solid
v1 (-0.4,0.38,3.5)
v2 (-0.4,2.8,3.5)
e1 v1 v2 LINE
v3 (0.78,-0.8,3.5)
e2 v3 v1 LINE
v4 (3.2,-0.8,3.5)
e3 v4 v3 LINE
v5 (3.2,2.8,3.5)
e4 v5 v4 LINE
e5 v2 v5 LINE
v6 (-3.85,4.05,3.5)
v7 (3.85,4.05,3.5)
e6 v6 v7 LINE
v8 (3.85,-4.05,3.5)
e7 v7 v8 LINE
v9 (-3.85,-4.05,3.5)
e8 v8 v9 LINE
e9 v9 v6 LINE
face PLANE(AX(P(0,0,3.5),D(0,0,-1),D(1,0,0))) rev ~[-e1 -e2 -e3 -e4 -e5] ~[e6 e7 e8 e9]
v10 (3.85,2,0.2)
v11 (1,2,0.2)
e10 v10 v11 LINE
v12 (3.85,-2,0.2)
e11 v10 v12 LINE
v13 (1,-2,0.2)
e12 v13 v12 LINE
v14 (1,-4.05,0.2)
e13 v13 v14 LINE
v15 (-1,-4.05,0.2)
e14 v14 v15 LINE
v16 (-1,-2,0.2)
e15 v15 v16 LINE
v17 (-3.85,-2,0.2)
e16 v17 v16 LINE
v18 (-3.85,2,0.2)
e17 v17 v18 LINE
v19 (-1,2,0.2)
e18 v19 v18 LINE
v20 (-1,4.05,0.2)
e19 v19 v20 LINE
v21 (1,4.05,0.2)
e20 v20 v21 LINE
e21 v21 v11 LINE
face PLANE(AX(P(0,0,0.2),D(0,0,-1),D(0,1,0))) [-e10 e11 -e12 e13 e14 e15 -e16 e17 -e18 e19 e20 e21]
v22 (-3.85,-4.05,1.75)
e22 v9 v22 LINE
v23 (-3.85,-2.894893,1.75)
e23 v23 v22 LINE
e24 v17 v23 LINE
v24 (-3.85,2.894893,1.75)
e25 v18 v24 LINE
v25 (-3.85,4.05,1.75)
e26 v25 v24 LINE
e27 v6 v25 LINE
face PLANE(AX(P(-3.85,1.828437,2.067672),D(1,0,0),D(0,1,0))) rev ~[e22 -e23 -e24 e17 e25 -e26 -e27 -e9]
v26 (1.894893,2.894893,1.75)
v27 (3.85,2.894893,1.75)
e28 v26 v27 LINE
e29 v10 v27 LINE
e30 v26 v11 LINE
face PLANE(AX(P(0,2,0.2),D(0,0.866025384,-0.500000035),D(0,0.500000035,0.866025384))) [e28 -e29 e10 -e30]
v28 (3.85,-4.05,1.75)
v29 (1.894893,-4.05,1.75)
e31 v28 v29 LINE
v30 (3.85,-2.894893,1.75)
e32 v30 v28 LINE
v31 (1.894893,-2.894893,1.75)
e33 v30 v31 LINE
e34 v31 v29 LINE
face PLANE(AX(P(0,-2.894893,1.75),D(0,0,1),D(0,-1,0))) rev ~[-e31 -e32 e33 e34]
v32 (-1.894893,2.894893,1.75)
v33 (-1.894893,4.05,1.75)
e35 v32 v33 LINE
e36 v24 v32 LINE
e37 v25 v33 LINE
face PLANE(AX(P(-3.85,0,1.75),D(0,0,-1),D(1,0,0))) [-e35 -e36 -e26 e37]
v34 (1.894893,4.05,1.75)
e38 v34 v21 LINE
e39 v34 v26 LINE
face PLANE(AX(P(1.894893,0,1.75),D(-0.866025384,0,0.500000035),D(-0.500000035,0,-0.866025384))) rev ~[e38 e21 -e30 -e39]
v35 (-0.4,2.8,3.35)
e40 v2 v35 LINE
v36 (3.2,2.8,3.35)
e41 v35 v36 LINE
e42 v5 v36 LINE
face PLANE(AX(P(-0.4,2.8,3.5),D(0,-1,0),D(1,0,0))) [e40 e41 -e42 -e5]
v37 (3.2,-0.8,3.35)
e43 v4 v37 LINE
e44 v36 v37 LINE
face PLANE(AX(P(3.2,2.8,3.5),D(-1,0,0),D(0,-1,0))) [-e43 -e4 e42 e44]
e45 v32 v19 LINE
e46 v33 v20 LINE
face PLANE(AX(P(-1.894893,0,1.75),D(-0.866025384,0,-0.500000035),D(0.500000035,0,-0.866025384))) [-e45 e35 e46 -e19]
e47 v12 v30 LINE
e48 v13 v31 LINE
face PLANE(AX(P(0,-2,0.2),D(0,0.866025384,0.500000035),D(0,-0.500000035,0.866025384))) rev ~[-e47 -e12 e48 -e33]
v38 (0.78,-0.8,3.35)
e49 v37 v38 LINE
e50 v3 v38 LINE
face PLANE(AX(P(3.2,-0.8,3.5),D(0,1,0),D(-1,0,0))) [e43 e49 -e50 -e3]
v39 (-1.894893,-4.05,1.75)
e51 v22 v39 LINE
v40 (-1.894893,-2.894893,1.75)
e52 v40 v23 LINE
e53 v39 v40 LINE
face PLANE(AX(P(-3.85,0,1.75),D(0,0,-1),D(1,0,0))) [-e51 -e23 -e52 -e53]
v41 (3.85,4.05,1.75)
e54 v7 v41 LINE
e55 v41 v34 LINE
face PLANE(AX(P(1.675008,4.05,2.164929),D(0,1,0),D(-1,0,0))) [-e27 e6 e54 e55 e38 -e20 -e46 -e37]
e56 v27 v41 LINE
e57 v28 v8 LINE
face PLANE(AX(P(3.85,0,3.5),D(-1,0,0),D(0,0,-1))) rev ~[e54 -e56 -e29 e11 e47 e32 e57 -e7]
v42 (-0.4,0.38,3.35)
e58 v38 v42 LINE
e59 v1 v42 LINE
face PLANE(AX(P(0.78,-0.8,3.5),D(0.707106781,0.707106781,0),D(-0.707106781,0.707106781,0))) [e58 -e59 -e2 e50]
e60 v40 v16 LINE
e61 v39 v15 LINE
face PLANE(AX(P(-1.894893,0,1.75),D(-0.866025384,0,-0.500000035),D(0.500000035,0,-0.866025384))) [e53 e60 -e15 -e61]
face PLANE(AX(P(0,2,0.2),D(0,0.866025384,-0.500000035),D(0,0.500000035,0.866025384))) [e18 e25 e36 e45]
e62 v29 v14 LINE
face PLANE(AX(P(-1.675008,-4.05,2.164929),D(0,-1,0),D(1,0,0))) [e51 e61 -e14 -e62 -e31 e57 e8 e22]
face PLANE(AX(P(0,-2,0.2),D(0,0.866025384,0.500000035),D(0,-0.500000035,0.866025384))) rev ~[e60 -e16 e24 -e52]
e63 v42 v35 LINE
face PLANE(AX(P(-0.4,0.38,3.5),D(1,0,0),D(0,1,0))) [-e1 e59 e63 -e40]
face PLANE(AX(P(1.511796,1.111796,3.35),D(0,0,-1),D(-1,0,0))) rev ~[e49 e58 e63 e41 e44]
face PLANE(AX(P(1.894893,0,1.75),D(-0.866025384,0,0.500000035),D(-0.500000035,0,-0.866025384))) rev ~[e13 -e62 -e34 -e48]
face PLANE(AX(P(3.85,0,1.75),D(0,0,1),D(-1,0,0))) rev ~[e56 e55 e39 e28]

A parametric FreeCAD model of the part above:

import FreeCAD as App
import Part
import Sketcher
from FreeCAD import Vector
Q = App.Units.Quantity

doc = App.newDocument("Part")
body = doc.addObject("PartDesign::Body", "Body")

sketch1 = body.newObject("Sketcher::SketchObject", "Sketch")
sketch1.AttachmentSupport = (doc.getObject("XZ_Plane"), [""])
sketch1.MapMode = "FlatFace"
sketch1.addGeometry([
    Part.LineSegment(Vector(0, 0.2, 0), Vector(0, 3.5, 0)),
    Part.LineSegment(Vector(0, 3.5, 0), Vector(-3.9, 3.5, 0)),
    Part.LineSegment(Vector(-3.9, 3.5, 0), Vector(-3.9, 1.8, 0)),
    Part.LineSegment(Vector(-3.9, 1.8, 0), Vector(-1.9, 1.8, 0)),
    Part.LineSegment(Vector(-1.9, 1.8, 0), Vector(-1, 0.2, 0)),
    Part.LineSegment(Vector(-1, 0.2, 0), Vector(0, 0.2, 0)),
], False)
sketch1.addConstraint([
    Sketcher.Constraint("Coincident", 0, 2, 1, 1),
    Sketcher.Constraint("Coincident", 1, 2, 2, 1),
    Sketcher.Constraint("Coincident", 2, 2, 3, 1),
    Sketcher.Constraint("Coincident", 3, 2, 4, 1),
    Sketcher.Constraint("Coincident", 4, 2, 5, 1),
    Sketcher.Constraint("Coincident", 5, 2, 0, 1),
    Sketcher.Constraint("Vertical", 0),
    Sketcher.Constraint("Horizontal", 1),
    Sketcher.Constraint("Vertical", 2),
    Sketcher.Constraint("Horizontal", 3),
    Sketcher.Constraint("Horizontal", 5),
    Sketcher.Constraint("PointOnObject", 0, 2, -2),
    Sketcher.Constraint("DistanceX", 5, 1, 5, 2, 1.0),
    Sketcher.Constraint("Angle", 4, Q("-59.999998 deg")),
    Sketcher.Constraint("DistanceY", 0, 1, 0, 2, 3.3),
    Sketcher.Constraint("DistanceX", 1, 2, 1, 1, 3.85),
    Sketcher.Constraint("DistanceY", 2, 2, 2, 1, 1.75),
    Sketcher.Constraint("DistanceY", -1, 1, 0, 2, 3.5),
])
pad1 = body.newObject("PartDesign::Pad", "Pad")
pad1.Profile = sketch1
pad1.Length = 8.1
pad1.Midplane = True

sketch2 = body.newObject("Sketcher::SketchObject", "Sketch001")
sketch2.AttachmentSupport = (doc.getObject("YZ_Plane"), [""])
sketch2.MapMode = "FlatFace"
sketch2.addGeometry([
    Part.LineSegment(Vector(-2.9, 1.8, 0), Vector(-2, 0.2, 0)),
    Part.LineSegment(Vector(-2, 0.2, 0), Vector(0, 0.2, 0)),
    Part.LineSegment(Vector(0, 0.2, 0), Vector(0, 3.5, 0)),
    Part.LineSegment(Vector(0, 3.5, 0), Vector(-4, 3.5, 0)),
    Part.LineSegment(Vector(-4, 3.5, 0), Vector(-4, 1.8, 0)),
    Part.LineSegment(Vector(-4, 1.8, 0), Vector(-2.9, 1.8, 0)),
], False)
sketch2.addConstraint([
    Sketcher.Constraint("Coincident", 0, 2, 1, 1),
    Sketcher.Constraint("Coincident", 1, 2, 2, 1),
    Sketcher.Constraint("Coincident", 2, 2, 3, 1),
    Sketcher.Constraint("Coincident", 3, 2, 4, 1),
    Sketcher.Constraint("Coincident", 4, 2, 5, 1),
    Sketcher.Constraint("Coincident", 5, 2, 0, 1),
    Sketcher.Constraint("Horizontal", 1),
    Sketcher.Constraint("Vertical", 2),
    Sketcher.Constraint("Horizontal", 3),
    Sketcher.Constraint("Vertical", 4),
    Sketcher.Constraint("Horizontal", 5),
    Sketcher.Constraint("PointOnObject", 1, 2, -2),
    Sketcher.Constraint("DistanceX", 1, 1, 1, 2, 2.0),
    Sketcher.Constraint("Angle", 0, Q("-59.999998 deg")),
    Sketcher.Constraint("DistanceY", 2, 1, 2, 2, 3.3),
    Sketcher.Constraint("DistanceX", 3, 2, 3, 1, 4.05),
    Sketcher.Constraint("DistanceY", 4, 2, 4, 1, 1.75),
    Sketcher.Constraint("DistanceY", -1, 1, 0, 2, 0.2),
])
pad2 = body.newObject("PartDesign::Pad", "Pad001")
pad2.Profile = sketch2
pad2.Length = 7.7
pad2.Midplane = True

sketch3 = body.newObject("Sketcher::SketchObject", "Sketch002")
sketch3.AttachmentSupport = (doc.getObject("XZ_Plane"), [""])
sketch3.MapMode = "FlatFace"
sketch3.addGeometry([
    Part.LineSegment(Vector(0, 3.5, 0), Vector(0, 0.2, 0)),
    Part.LineSegment(Vector(0, 0.2, 0), Vector(1, 0.2, 0)),
    Part.LineSegment(Vector(1, 0.2, 0), Vector(1.9, 1.8, 0)),
    Part.LineSegment(Vector(1.9, 1.8, 0), Vector(3.9, 1.8, 0)),
    Part.LineSegment(Vector(3.9, 1.8, 0), Vector(3.9, 3.5, 0)),
    Part.LineSegment(Vector(3.9, 3.5, 0), Vector(0, 3.5, 0)),
], False)
sketch3.addConstraint([
    Sketcher.Constraint("Coincident", 0, 2, 1, 1),
    Sketcher.Constraint("Coincident", 1, 2, 2, 1),
    Sketcher.Constraint("Coincident", 2, 2, 3, 1),
    Sketcher.Constraint("Coincident", 3, 2, 4, 1),
    Sketcher.Constraint("Coincident", 4, 2, 5, 1),
    Sketcher.Constraint("Coincident", 5, 2, 0, 1),
    Sketcher.Constraint("Vertical", 0),
    Sketcher.Constraint("Horizontal", 1),
    Sketcher.Constraint("Horizontal", 3),
    Sketcher.Constraint("Vertical", 4),
    Sketcher.Constraint("Horizontal", 5),
    Sketcher.Constraint("PointOnObject", 0, 2, -2),
    Sketcher.Constraint("DistanceX", 1, 1, 1, 2, 1.0),
    Sketcher.Constraint("Angle", 2, Q("59.999998 deg")),
    Sketcher.Constraint("DistanceY", 0, 2, 0, 1, 3.3),
    Sketcher.Constraint("DistanceX", 5, 2, 5, 1, 3.85),
    Sketcher.Constraint("DistanceY", 4, 1, 4, 2, 1.75),
    Sketcher.Constraint("DistanceY", -1, 1, 0, 2, 0.2),
])
pad3 = body.newObject("PartDesign::Pad", "Pad002")
pad3.Profile = sketch3
pad3.Length = 8.1
pad3.Midplane = True

sketch4 = body.newObject("Sketcher::SketchObject", "Sketch003")
sketch4.AttachmentSupport = (doc.getObject("YZ_Plane"), [""])
sketch4.MapMode = "FlatFace"
sketch4.addGeometry([
    Part.LineSegment(Vector(2, 0.2, 0), Vector(2.9, 1.8, 0)),
    Part.LineSegment(Vector(2.9, 1.8, 0), Vector(4, 1.8, 0)),
    Part.LineSegment(Vector(4, 1.8, 0), Vector(4, 3.5, 0)),
    Part.LineSegment(Vector(4, 3.5, 0), Vector(0, 3.5, 0)),
    Part.LineSegment(Vector(0, 3.5, 0), Vector(0, 0.2, 0)),
    Part.LineSegment(Vector(0, 0.2, 0), Vector(2, 0.2, 0)),
], False)
sketch4.addConstraint([
    Sketcher.Constraint("Coincident", 0, 2, 1, 1),
    Sketcher.Constraint("Coincident", 1, 2, 2, 1),
    Sketcher.Constraint("Coincident", 2, 2, 3, 1),
    Sketcher.Constraint("Coincident", 3, 2, 4, 1),
    Sketcher.Constraint("Coincident", 4, 2, 5, 1),
    Sketcher.Constraint("Coincident", 5, 2, 0, 1),
    Sketcher.Constraint("Horizontal", 1),
    Sketcher.Constraint("Vertical", 2),
    Sketcher.Constraint("Horizontal", 3),
    Sketcher.Constraint("Vertical", 4),
    Sketcher.Constraint("Horizontal", 5),
    Sketcher.Constraint("PointOnObject", 3, 2, -2),
    Sketcher.Constraint("DistanceX", 5, 1, 5, 2, 2.0),
    Sketcher.Constraint("Angle", 0, Q("59.999998 deg")),
    Sketcher.Constraint("DistanceY", 4, 2, 4, 1, 3.3),
    Sketcher.Constraint("DistanceX", 3, 2, 3, 1, 4.05),
    Sketcher.Constraint("DistanceY", 2, 1, 2, 2, 1.75),
    Sketcher.Constraint("DistanceY", -1, 1, 2, 2, 3.5),
])
pad4 = body.newObject("PartDesign::Pad", "Pad003")
pad4.Profile = sketch4
pad4.Length = 7.7
pad4.Midplane = True

sketch5 = body.newObject("Sketcher::SketchObject", "Sketch004")
sketch5.AttachmentSupport = (doc.getObject("XY_Plane"), [""])
sketch5.MapMode = "FlatFace"
sketch5.AttachmentOffset = App.Placement(Vector(0, 0, 3.5), App.Rotation())
sketch5.addGeometry([
    Part.LineSegment(Vector(3.2, 2.8, 0), Vector(-0.4, 2.8, 0)),
    Part.LineSegment(Vector(-0.4, 2.8, 0), Vector(-0.4, 0.4, 0)),
    Part.LineSegment(Vector(-0.4, 0.4, 0), Vector(0.8, -0.8, 0)),
    Part.LineSegment(Vector(0.8, -0.8, 0), Vector(3.2, -0.8, 0)),
    Part.LineSegment(Vector(3.2, -0.8, 0), Vector(3.2, 2.8, 0)),
], False)
sketch5.addConstraint([
    Sketcher.Constraint("Coincident", 0, 2, 1, 1),
    Sketcher.Constraint("Coincident", 1, 2, 2, 1),
    Sketcher.Constraint("Coincident", 2, 2, 3, 1),
    Sketcher.Constraint("Coincident", 3, 2, 4, 1),
    Sketcher.Constraint("Coincident", 4, 2, 0, 1),
    Sketcher.Constraint("Horizontal", 0),
    Sketcher.Constraint("Vertical", 1),
    Sketcher.Constraint("Horizontal", 3),
    Sketcher.Constraint("Vertical", 4),
    Sketcher.Constraint("Equal", 3, 1),
    Sketcher.Constraint("Equal", 0, 4),
    Sketcher.Constraint("DistanceX", 0, 2, 0, 1, 3.6),
    Sketcher.Constraint("DistanceX", 3, 1, 3, 2, 2.42),
    Sketcher.Constraint("DistanceX", 0, 2, -1, 1, 0.4),
    Sketcher.Constraint("DistanceY", -1, 1, 0, 2, 2.8),
])
pocket1 = body.newObject("PartDesign::Pocket", "Pocket")
pocket1.Profile = sketch5
pocket1.Length = 0.15

doc.recompute()
